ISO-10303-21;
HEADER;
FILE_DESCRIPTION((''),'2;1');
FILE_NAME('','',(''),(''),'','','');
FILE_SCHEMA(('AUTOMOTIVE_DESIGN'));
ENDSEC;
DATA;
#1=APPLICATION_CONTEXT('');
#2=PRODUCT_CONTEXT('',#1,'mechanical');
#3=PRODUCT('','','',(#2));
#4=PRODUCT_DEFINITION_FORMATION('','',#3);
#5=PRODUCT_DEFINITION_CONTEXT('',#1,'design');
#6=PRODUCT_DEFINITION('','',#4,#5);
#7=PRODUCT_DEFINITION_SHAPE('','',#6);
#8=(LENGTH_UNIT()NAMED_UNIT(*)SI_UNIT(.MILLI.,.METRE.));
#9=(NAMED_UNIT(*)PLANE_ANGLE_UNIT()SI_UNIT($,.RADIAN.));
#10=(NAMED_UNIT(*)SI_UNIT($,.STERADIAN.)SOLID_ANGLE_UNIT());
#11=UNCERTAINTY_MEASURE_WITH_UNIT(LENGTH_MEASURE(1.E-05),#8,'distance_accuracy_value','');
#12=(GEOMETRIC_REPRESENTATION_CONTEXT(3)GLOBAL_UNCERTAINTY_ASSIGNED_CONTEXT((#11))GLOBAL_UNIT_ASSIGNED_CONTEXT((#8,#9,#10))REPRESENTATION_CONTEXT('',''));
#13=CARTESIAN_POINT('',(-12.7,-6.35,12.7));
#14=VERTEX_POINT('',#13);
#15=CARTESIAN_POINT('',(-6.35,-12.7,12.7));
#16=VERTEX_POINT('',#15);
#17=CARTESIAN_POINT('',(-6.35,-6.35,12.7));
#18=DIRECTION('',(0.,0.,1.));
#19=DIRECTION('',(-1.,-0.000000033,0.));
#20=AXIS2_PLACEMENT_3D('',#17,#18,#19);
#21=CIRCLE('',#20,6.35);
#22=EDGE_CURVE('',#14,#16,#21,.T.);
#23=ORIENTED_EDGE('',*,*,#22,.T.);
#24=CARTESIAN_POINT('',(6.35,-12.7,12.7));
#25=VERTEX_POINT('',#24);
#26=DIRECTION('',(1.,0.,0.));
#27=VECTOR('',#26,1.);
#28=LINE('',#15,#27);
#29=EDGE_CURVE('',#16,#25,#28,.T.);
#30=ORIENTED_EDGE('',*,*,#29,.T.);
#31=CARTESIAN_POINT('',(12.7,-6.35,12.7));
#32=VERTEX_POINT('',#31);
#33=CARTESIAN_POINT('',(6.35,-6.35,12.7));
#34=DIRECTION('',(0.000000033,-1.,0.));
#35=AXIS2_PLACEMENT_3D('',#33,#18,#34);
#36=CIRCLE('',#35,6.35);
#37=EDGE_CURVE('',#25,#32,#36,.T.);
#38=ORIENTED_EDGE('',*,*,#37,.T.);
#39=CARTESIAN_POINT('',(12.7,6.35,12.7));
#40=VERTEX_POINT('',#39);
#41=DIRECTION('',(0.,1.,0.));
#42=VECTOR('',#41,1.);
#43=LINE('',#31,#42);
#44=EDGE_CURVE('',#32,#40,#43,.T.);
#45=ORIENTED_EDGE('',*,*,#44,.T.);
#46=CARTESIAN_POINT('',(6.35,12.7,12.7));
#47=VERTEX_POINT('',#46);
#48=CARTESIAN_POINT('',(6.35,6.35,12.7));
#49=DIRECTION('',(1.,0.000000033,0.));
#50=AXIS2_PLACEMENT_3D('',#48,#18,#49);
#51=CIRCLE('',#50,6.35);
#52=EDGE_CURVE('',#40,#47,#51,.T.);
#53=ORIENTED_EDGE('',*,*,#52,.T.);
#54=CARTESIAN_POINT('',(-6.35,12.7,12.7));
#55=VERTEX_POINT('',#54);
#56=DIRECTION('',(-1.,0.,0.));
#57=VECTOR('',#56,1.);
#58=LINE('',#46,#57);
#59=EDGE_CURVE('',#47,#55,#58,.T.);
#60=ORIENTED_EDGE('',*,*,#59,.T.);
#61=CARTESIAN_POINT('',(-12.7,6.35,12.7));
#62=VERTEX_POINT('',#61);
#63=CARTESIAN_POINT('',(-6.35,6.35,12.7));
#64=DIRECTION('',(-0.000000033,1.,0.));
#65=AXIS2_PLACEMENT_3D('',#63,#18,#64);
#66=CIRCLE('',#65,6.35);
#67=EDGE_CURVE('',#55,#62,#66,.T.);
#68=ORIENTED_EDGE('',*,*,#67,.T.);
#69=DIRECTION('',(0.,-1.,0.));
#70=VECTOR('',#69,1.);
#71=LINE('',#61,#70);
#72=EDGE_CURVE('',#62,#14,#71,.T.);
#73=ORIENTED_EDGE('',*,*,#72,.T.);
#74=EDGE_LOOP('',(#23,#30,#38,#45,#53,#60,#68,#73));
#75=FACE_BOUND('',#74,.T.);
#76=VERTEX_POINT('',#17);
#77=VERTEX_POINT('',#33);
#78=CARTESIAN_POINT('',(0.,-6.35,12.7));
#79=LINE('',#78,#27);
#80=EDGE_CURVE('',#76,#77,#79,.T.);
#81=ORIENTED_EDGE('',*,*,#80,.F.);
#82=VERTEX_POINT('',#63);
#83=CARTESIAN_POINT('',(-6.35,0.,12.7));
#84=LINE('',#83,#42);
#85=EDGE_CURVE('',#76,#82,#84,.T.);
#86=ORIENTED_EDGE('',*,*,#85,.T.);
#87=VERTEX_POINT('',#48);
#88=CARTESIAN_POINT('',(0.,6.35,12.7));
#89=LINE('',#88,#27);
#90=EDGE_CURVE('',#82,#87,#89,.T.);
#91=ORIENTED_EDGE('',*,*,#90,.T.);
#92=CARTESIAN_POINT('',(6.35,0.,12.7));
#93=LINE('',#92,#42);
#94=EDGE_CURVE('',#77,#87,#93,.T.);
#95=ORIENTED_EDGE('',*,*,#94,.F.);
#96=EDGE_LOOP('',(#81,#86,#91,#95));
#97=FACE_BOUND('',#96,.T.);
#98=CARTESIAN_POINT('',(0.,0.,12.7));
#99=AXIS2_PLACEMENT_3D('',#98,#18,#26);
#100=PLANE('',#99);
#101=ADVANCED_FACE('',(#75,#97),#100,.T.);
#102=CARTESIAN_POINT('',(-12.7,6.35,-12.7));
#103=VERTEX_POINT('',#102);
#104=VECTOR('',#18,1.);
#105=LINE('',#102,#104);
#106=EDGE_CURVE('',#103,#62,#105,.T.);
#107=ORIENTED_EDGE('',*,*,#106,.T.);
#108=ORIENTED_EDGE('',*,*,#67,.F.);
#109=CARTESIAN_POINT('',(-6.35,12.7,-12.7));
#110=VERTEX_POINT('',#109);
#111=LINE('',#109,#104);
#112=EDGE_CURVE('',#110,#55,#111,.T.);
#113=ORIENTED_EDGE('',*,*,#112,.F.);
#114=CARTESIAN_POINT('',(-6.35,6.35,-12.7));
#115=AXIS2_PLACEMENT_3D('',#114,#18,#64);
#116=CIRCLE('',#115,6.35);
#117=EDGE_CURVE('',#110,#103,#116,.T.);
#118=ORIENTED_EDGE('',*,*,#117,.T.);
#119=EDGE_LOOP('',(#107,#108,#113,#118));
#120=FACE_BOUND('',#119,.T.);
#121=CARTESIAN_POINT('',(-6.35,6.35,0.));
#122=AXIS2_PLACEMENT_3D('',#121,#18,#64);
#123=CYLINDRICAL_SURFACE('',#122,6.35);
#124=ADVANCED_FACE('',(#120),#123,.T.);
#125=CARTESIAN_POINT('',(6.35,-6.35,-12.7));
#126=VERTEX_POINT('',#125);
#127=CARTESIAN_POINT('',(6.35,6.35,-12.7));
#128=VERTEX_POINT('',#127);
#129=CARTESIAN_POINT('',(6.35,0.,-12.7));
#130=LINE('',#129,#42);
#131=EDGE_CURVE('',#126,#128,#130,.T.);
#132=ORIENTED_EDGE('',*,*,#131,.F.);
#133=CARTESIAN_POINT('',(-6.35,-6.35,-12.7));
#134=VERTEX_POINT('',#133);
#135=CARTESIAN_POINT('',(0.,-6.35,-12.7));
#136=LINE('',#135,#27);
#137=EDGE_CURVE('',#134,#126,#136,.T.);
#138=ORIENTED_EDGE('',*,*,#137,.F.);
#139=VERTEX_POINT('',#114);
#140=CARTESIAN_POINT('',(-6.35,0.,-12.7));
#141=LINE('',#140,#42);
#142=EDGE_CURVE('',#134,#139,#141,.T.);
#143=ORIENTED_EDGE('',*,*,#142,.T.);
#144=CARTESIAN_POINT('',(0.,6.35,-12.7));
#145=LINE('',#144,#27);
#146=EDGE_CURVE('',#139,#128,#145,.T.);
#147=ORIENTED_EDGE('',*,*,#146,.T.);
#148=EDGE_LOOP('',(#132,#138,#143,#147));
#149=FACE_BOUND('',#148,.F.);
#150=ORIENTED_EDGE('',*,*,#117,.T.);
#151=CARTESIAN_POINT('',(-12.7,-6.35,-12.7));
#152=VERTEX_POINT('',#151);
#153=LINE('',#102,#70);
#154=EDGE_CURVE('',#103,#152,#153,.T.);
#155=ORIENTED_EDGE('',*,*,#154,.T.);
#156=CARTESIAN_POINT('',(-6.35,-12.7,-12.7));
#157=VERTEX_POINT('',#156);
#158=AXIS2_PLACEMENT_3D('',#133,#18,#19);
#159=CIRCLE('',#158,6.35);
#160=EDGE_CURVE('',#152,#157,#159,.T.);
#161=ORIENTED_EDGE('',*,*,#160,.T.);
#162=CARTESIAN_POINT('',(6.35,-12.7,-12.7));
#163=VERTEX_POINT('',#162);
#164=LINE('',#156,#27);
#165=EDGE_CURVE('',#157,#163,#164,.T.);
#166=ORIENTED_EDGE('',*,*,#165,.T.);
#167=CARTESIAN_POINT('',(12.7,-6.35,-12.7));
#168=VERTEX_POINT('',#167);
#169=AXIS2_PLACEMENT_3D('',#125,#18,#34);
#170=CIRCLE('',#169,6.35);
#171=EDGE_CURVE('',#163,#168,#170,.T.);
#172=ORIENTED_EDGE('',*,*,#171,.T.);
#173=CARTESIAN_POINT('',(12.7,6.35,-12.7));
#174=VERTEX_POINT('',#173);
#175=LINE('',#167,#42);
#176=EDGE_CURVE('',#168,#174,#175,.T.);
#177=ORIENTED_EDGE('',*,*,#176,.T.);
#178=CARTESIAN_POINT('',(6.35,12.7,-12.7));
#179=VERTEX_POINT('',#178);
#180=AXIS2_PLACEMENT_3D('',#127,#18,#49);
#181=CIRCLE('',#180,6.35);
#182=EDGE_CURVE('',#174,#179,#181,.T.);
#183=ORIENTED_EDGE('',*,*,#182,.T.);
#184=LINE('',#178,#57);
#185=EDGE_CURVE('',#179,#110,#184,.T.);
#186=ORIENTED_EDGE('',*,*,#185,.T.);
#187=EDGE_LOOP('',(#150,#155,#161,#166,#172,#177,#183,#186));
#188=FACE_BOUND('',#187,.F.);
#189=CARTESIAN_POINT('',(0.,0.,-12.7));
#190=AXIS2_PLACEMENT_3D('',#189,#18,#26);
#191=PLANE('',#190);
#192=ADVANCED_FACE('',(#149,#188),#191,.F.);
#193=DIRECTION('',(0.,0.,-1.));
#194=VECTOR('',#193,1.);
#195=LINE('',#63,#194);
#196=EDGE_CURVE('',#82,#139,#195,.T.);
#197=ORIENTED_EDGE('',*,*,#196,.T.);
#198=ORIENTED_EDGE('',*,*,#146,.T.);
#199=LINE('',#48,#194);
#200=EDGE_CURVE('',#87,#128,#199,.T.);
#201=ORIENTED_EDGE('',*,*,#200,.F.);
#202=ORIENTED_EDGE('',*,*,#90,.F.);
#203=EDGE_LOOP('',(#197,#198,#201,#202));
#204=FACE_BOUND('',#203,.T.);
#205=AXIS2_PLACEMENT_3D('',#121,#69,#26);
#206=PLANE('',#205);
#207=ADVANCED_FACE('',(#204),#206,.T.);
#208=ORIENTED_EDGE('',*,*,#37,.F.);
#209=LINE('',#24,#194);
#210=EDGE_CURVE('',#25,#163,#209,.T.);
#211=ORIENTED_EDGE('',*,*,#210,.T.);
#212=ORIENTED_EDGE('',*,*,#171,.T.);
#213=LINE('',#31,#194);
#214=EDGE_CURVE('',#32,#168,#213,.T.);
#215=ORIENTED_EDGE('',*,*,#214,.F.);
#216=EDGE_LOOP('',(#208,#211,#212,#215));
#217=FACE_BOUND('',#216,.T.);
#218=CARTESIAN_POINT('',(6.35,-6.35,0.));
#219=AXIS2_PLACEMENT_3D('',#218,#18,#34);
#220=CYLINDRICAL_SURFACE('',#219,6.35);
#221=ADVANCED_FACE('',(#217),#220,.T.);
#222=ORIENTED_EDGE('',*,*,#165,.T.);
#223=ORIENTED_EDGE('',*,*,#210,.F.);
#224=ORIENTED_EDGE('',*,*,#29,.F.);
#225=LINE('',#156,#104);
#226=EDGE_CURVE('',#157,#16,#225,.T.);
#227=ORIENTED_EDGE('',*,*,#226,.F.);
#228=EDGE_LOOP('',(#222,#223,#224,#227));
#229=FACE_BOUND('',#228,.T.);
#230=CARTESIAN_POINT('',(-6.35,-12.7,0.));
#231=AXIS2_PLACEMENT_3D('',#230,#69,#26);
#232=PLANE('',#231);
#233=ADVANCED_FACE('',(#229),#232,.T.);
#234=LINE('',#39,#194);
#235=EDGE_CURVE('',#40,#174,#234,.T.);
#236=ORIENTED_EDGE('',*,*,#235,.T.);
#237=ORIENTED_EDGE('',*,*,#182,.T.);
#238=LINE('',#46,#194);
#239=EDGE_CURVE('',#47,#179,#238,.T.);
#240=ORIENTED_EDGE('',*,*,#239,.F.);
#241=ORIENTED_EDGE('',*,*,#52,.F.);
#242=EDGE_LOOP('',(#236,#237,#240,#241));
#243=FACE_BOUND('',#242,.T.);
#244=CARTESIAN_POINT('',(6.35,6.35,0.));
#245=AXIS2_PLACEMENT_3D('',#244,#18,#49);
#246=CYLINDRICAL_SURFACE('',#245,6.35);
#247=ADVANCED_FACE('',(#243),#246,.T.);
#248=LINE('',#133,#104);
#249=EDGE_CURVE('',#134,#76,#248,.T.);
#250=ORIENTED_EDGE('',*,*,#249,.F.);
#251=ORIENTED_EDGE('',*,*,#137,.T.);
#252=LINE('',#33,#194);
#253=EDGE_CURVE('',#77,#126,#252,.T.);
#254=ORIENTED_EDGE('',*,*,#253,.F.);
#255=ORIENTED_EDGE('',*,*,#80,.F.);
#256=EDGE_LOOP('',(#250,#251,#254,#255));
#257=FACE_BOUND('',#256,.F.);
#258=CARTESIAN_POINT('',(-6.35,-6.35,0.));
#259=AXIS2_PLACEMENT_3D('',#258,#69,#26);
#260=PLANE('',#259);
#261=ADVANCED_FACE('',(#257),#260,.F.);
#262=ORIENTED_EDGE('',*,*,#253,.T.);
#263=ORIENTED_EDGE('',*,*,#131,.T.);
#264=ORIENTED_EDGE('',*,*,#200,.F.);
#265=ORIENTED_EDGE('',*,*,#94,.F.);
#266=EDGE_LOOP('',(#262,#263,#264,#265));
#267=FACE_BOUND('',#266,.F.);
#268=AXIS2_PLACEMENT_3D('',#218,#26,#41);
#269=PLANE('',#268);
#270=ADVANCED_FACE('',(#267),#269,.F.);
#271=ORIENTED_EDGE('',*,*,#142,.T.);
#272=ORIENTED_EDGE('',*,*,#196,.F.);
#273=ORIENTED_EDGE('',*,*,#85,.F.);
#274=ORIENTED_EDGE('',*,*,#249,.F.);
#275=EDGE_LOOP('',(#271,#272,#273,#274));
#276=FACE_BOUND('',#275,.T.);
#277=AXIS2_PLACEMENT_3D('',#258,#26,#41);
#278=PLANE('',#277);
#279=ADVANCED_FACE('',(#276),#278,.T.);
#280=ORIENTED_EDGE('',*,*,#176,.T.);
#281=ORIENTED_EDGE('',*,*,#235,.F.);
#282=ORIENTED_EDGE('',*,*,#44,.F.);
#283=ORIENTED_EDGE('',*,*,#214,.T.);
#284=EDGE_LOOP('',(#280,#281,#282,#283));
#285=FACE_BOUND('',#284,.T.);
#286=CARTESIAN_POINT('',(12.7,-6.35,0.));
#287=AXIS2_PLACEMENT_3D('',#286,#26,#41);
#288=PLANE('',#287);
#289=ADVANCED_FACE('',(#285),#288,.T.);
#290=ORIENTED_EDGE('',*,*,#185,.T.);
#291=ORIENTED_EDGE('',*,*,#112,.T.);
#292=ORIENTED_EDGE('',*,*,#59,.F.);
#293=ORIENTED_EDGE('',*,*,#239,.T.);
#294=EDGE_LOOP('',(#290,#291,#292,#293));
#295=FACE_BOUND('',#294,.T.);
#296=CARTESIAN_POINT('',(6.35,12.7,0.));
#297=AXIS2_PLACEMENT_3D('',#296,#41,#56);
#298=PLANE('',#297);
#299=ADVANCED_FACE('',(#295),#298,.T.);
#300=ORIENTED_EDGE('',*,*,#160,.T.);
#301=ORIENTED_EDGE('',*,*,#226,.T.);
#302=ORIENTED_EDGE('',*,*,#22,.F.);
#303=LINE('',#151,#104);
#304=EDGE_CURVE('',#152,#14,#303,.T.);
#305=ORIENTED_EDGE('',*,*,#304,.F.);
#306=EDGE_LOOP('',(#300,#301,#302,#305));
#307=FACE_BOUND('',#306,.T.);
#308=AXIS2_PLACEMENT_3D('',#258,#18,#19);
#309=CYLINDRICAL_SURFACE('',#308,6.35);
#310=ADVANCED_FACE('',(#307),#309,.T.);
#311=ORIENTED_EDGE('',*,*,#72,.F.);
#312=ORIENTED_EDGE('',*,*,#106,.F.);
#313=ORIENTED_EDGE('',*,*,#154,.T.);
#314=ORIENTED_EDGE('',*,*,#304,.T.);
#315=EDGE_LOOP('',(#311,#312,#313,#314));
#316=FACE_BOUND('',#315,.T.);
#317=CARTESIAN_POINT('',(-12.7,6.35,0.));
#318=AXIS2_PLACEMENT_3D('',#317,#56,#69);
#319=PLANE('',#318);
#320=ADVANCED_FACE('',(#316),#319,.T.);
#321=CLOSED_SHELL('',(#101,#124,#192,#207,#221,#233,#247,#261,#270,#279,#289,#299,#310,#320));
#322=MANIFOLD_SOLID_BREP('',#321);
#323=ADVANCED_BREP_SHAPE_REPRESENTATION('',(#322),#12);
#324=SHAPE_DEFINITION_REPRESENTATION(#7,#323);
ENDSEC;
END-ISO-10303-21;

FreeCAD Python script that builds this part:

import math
import FreeCAD as App
import Part
import Sketcher

V = App.Vector
Q = App.Units.Quantity

doc = App.newDocument("Part")
body = doc.addObject("PartDesign::Body", "Body")

sketch1 = body.newObject("Sketcher::SketchObject", "Sketch")
sketch1.AttachmentSupport = (doc.getObject("XY_Plane"), [""])
sketch1.MapMode = "FlatFace"
sketch1.addGeometry(Part.LineSegment(V(6.35, 12.7, 0), V(-6.35, 12.7, 0)), False)
sketch1.addGeometry(Part.ArcOfCircle(Part.Circle(V(-6.35, 6.35, 0), V(0, 0, 1), 6.35), math.radians(90.000002), math.radians(179.999998)), False)
sketch1.addGeometry(Part.LineSegment(V(-12.7, 6.35, 0), V(-12.7, -6.35, 0)), False)
sketch1.addGeometry(Part.ArcOfCircle(Part.Circle(V(-6.35, -6.35, 0), V(0, 0, 1), 6.35), math.radians(-179.999998), math.radians(-90.000002)), False)
sketch1.addGeometry(Part.LineSegment(V(-6.35, -12.7, 0), V(6.35, -12.7, 0)), False)
sketch1.addGeometry(Part.ArcOfCircle(Part.Circle(V(6.35, -6.35, 0), V(0, 0, 1), 6.35), math.radians(-89.999998), math.radians(-0.000002)), False)
sketch1.addGeometry(Part.LineSegment(V(12.7, -6.35, 0), V(12.7, 6.35, 0)), False)
sketch1.addGeometry(Part.ArcOfCircle(Part.Circle(V(6.35, 6.35, 0), V(0, 0, 1), 6.35), math.radians(0.000002), math.radians(89.999998)), False)
sketch1.addGeometry(Part.LineSegment(V(6.35, -6.35, 0), V(-6.35, -6.35, 0)), False)
sketch1.addGeometry(Part.LineSegment(V(-6.35, -6.35, 0), V(-6.35, 6.35, 0)), False)
sketch1.addGeometry(Part.LineSegment(V(-6.35, 6.35, 0), V(6.35, 6.35, 0)), False)
sketch1.addGeometry(Part.LineSegment(V(6.35, 6.35, 0), V(6.35, -6.35, 0)), False)
sketch1.addConstraint(Sketcher.Constraint("Tangent", 0, 2, 1, 1))
sketch1.addConstraint(Sketcher.Constraint("Tangent", 1, 2, 2, 1))
sketch1.addConstraint(Sketcher.Constraint("Tangent", 2, 2, 3, 1))
sketch1.addConstraint(Sketcher.Constraint("Tangent", 3, 2, 4, 1))
sketch1.addConstraint(Sketcher.Constraint("Tangent", 4, 2, 5, 1))
sketch1.addConstraint(Sketcher.Constraint("Tangent", 5, 2, 6, 1))
sketch1.addConstraint(Sketcher.Constraint("Tangent", 6, 2, 7, 1))
sketch1.addConstraint(Sketcher.Constraint("Tangent", 7, 2, 0, 1))
sketch1.addConstraint(Sketcher.Constraint("Coincident", 8, 2, 9, 1))
sketch1.addConstraint(Sketcher.Constraint("Coincident", 9, 2, 10, 1))
sketch1.addConstraint(Sketcher.Constraint("Coincident", 10, 2, 11, 1))
sketch1.addConstraint(Sketcher.Constraint("Coincident", 11, 2, 8, 1))
sketch1.addConstraint(Sketcher.Constraint("Horizontal", 0))
sketch1.addConstraint(Sketcher.Constraint("Vertical", 2))
sketch1.addConstraint(Sketcher.Constraint("Horizontal", 4))
sketch1.addConstraint(Sketcher.Constraint("Vertical", 6))
sketch1.addConstraint(Sketcher.Constraint("Horizontal", 8))
sketch1.addConstraint(Sketcher.Constraint("Vertical", 9))
sketch1.addConstraint(Sketcher.Constraint("Horizontal", 10))
sketch1.addConstraint(Sketcher.Constraint("Vertical", 11))
sketch1.addConstraint(Sketcher.Constraint("Coincident", 8, 2, 3, 3))
sketch1.addConstraint(Sketcher.Constraint("Coincident", 9, 2, 1, 3))
sketch1.addConstraint(Sketcher.Constraint("Coincident", 10, 2, 7, 3))
sketch1.addConstraint(Sketcher.Constraint("Equal", 3, 5))
sketch1.addConstraint(Sketcher.Constraint("Symmetric", 1, 3, 5, 3, -1, 1))
sketch1.addConstraint(Sketcher.Constraint("Equal", 10, 2))
sketch1.addConstraint(Sketcher.Constraint("Radius", 1, Q("0.25 in")))
sketch1.addConstraint(Sketcher.Constraint("DistanceX", 0, 2, 0, 1, Q("0.5 in")))
pad1 = body.newObject("PartDesign::Pad", "Pad")
pad1.Profile = sketch1
pad1.Length = Q("1 in")
pad1.Midplane = True

doc.recompute()
